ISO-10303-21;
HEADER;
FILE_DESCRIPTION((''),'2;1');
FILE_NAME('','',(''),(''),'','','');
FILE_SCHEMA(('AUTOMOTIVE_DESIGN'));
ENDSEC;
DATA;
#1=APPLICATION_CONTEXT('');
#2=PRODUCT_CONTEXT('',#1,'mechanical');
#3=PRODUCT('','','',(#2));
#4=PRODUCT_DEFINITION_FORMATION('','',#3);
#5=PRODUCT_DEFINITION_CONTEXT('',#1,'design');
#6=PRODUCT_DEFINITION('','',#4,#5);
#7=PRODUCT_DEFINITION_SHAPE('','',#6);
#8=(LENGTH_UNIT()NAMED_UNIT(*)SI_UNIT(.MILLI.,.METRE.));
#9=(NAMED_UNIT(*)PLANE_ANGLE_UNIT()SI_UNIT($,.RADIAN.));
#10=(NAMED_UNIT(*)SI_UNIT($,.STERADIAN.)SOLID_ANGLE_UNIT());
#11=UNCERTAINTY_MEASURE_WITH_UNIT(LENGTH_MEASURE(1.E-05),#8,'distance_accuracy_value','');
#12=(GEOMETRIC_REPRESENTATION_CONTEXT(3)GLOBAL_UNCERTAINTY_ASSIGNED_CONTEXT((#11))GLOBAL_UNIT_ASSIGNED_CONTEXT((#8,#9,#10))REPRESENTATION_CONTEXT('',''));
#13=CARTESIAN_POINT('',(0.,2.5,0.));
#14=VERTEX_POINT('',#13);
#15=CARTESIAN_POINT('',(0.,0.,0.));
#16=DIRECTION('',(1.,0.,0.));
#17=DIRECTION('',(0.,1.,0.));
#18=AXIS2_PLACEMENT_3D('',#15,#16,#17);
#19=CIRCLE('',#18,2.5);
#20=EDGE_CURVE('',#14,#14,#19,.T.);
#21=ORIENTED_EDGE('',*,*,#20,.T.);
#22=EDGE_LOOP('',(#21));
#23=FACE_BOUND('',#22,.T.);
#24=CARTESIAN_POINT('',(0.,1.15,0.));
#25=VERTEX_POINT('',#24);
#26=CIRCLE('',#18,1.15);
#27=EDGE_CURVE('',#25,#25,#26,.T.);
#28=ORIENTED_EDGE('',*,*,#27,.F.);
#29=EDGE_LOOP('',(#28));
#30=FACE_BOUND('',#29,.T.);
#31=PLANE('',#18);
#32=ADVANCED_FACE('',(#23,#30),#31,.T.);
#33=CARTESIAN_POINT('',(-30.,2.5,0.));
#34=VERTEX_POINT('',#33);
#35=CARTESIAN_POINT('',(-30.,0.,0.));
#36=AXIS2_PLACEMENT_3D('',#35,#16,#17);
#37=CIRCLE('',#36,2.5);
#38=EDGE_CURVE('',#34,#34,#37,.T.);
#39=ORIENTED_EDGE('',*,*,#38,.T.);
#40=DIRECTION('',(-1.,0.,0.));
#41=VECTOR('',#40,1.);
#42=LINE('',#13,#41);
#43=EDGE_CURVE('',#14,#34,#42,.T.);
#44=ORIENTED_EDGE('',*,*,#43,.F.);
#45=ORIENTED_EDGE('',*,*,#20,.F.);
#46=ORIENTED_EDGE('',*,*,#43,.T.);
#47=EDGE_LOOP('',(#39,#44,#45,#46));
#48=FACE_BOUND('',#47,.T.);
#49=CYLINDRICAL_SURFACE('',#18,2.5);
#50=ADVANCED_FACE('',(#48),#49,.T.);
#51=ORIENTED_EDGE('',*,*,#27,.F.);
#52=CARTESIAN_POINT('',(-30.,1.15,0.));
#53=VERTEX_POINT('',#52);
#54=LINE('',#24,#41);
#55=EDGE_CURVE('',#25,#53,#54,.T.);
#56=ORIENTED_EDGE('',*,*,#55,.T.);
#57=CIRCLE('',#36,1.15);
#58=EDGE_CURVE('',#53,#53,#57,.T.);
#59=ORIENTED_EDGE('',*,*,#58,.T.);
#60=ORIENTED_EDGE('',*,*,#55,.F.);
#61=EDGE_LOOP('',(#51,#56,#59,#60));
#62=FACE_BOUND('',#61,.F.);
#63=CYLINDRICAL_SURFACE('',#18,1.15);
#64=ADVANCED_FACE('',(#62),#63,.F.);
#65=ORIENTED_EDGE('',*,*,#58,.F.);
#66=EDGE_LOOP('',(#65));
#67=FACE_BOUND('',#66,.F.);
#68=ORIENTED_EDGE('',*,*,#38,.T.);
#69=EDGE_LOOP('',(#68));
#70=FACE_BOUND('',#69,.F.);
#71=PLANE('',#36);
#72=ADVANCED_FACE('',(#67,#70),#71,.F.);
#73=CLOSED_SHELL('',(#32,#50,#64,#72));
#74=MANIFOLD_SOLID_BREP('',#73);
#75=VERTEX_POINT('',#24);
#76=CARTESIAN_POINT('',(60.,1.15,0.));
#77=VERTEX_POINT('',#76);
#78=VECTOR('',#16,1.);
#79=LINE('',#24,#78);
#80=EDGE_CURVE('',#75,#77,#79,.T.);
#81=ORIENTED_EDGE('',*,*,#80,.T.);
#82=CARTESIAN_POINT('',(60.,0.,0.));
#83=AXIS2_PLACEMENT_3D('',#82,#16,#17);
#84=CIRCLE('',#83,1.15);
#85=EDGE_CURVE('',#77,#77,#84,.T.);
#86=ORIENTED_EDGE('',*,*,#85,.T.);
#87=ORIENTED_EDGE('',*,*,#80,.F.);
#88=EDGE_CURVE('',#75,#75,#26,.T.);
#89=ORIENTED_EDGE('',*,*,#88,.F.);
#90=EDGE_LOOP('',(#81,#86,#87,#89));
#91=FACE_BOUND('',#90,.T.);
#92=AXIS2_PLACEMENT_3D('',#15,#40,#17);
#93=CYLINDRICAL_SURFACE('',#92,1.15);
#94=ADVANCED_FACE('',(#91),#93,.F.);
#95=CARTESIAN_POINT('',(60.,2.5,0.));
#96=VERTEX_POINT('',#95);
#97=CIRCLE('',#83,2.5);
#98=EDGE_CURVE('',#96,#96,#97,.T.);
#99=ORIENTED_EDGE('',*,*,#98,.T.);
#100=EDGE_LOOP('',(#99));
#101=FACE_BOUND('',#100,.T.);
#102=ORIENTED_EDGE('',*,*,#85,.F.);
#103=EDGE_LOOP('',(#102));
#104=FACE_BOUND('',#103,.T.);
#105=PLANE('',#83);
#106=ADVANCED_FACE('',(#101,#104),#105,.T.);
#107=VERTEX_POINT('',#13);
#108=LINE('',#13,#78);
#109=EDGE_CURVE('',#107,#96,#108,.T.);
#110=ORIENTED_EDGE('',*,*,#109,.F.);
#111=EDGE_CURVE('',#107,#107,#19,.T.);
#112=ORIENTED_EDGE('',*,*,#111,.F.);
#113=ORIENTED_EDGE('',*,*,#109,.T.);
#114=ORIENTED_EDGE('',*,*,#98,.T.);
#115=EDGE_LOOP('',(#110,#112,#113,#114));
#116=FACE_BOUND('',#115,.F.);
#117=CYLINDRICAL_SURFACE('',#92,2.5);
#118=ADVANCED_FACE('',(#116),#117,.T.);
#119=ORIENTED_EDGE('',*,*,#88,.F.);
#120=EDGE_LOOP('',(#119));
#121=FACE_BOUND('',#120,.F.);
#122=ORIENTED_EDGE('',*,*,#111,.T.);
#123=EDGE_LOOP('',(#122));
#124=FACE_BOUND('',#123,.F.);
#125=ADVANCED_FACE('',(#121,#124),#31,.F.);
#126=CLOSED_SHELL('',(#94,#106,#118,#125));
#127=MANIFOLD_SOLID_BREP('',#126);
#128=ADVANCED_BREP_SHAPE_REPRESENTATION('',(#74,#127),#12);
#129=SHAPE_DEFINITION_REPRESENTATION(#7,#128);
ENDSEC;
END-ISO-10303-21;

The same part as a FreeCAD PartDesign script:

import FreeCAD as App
import Part
import Sketcher
from FreeCAD import Vector
Q = App.Units.Quantity

doc = App.newDocument("Part")
body = doc.addObject("PartDesign::Body", "Body")

sketch1 = body.newObject("Sketcher::SketchObject", "Sketch")
sketch1.AttachmentSupport = (doc.getObject("YZ_Plane"), [""])
sketch1.MapMode = "FlatFace"
sketch1.addGeometry([
    Part.Circle(Vector(0, 0, 0), Vector(0, 0, 1), 2.5),
    Part.Circle(Vector(0, 0, 0), Vector(0, 0, 1), 1.1),
], False)
sketch1.addConstraint([
    Sketcher.Constraint("Coincident", 0, 3, -1, 1),
    Sketcher.Constraint("Coincident", 1, 3, -1, 1),
    Sketcher.Constraint("Diameter", 0, Q("5 mm")),
    Sketcher.Constraint("Diameter", 1, Q("2.3 mm")),
])
pad1 = body.newObject("PartDesign::Pad", "Pad")
pad1.Profile = sketch1
pad1.Length = 60
body2 = doc.addObject("PartDesign::Body", "Body001")

sketch2 = body2.newObject("Sketcher::SketchObject", "Sketch001")
sketch2.AttachmentSupport = (doc.getObject("YZ_Plane001"), [""])
sketch2.MapMode = "FlatFace"
sketch2.addGeometry([
    Part.Circle(Vector(0, 0, 0), Vector(0, 0, 1), 2.5),
    Part.Circle(Vector(0, 0, 0), Vector(0, 0, 1), 1.1),
], False)
sketch2.addConstraint([
    Sketcher.Constraint("Coincident", 0, 3, -1, 1),
    Sketcher.Constraint("Coincident", 1, 3, -1, 1),
    Sketcher.Constraint("Diameter", 0, Q("5 mm")),
    Sketcher.Constraint("Diameter", 1, Q("2.3 mm")),
])
pad2 = body2.newObject("PartDesign::Pad", "Pad001")
pad2.Profile = sketch2
pad2.Length = 30
pad2.Reversed = True

doc.recompute()
